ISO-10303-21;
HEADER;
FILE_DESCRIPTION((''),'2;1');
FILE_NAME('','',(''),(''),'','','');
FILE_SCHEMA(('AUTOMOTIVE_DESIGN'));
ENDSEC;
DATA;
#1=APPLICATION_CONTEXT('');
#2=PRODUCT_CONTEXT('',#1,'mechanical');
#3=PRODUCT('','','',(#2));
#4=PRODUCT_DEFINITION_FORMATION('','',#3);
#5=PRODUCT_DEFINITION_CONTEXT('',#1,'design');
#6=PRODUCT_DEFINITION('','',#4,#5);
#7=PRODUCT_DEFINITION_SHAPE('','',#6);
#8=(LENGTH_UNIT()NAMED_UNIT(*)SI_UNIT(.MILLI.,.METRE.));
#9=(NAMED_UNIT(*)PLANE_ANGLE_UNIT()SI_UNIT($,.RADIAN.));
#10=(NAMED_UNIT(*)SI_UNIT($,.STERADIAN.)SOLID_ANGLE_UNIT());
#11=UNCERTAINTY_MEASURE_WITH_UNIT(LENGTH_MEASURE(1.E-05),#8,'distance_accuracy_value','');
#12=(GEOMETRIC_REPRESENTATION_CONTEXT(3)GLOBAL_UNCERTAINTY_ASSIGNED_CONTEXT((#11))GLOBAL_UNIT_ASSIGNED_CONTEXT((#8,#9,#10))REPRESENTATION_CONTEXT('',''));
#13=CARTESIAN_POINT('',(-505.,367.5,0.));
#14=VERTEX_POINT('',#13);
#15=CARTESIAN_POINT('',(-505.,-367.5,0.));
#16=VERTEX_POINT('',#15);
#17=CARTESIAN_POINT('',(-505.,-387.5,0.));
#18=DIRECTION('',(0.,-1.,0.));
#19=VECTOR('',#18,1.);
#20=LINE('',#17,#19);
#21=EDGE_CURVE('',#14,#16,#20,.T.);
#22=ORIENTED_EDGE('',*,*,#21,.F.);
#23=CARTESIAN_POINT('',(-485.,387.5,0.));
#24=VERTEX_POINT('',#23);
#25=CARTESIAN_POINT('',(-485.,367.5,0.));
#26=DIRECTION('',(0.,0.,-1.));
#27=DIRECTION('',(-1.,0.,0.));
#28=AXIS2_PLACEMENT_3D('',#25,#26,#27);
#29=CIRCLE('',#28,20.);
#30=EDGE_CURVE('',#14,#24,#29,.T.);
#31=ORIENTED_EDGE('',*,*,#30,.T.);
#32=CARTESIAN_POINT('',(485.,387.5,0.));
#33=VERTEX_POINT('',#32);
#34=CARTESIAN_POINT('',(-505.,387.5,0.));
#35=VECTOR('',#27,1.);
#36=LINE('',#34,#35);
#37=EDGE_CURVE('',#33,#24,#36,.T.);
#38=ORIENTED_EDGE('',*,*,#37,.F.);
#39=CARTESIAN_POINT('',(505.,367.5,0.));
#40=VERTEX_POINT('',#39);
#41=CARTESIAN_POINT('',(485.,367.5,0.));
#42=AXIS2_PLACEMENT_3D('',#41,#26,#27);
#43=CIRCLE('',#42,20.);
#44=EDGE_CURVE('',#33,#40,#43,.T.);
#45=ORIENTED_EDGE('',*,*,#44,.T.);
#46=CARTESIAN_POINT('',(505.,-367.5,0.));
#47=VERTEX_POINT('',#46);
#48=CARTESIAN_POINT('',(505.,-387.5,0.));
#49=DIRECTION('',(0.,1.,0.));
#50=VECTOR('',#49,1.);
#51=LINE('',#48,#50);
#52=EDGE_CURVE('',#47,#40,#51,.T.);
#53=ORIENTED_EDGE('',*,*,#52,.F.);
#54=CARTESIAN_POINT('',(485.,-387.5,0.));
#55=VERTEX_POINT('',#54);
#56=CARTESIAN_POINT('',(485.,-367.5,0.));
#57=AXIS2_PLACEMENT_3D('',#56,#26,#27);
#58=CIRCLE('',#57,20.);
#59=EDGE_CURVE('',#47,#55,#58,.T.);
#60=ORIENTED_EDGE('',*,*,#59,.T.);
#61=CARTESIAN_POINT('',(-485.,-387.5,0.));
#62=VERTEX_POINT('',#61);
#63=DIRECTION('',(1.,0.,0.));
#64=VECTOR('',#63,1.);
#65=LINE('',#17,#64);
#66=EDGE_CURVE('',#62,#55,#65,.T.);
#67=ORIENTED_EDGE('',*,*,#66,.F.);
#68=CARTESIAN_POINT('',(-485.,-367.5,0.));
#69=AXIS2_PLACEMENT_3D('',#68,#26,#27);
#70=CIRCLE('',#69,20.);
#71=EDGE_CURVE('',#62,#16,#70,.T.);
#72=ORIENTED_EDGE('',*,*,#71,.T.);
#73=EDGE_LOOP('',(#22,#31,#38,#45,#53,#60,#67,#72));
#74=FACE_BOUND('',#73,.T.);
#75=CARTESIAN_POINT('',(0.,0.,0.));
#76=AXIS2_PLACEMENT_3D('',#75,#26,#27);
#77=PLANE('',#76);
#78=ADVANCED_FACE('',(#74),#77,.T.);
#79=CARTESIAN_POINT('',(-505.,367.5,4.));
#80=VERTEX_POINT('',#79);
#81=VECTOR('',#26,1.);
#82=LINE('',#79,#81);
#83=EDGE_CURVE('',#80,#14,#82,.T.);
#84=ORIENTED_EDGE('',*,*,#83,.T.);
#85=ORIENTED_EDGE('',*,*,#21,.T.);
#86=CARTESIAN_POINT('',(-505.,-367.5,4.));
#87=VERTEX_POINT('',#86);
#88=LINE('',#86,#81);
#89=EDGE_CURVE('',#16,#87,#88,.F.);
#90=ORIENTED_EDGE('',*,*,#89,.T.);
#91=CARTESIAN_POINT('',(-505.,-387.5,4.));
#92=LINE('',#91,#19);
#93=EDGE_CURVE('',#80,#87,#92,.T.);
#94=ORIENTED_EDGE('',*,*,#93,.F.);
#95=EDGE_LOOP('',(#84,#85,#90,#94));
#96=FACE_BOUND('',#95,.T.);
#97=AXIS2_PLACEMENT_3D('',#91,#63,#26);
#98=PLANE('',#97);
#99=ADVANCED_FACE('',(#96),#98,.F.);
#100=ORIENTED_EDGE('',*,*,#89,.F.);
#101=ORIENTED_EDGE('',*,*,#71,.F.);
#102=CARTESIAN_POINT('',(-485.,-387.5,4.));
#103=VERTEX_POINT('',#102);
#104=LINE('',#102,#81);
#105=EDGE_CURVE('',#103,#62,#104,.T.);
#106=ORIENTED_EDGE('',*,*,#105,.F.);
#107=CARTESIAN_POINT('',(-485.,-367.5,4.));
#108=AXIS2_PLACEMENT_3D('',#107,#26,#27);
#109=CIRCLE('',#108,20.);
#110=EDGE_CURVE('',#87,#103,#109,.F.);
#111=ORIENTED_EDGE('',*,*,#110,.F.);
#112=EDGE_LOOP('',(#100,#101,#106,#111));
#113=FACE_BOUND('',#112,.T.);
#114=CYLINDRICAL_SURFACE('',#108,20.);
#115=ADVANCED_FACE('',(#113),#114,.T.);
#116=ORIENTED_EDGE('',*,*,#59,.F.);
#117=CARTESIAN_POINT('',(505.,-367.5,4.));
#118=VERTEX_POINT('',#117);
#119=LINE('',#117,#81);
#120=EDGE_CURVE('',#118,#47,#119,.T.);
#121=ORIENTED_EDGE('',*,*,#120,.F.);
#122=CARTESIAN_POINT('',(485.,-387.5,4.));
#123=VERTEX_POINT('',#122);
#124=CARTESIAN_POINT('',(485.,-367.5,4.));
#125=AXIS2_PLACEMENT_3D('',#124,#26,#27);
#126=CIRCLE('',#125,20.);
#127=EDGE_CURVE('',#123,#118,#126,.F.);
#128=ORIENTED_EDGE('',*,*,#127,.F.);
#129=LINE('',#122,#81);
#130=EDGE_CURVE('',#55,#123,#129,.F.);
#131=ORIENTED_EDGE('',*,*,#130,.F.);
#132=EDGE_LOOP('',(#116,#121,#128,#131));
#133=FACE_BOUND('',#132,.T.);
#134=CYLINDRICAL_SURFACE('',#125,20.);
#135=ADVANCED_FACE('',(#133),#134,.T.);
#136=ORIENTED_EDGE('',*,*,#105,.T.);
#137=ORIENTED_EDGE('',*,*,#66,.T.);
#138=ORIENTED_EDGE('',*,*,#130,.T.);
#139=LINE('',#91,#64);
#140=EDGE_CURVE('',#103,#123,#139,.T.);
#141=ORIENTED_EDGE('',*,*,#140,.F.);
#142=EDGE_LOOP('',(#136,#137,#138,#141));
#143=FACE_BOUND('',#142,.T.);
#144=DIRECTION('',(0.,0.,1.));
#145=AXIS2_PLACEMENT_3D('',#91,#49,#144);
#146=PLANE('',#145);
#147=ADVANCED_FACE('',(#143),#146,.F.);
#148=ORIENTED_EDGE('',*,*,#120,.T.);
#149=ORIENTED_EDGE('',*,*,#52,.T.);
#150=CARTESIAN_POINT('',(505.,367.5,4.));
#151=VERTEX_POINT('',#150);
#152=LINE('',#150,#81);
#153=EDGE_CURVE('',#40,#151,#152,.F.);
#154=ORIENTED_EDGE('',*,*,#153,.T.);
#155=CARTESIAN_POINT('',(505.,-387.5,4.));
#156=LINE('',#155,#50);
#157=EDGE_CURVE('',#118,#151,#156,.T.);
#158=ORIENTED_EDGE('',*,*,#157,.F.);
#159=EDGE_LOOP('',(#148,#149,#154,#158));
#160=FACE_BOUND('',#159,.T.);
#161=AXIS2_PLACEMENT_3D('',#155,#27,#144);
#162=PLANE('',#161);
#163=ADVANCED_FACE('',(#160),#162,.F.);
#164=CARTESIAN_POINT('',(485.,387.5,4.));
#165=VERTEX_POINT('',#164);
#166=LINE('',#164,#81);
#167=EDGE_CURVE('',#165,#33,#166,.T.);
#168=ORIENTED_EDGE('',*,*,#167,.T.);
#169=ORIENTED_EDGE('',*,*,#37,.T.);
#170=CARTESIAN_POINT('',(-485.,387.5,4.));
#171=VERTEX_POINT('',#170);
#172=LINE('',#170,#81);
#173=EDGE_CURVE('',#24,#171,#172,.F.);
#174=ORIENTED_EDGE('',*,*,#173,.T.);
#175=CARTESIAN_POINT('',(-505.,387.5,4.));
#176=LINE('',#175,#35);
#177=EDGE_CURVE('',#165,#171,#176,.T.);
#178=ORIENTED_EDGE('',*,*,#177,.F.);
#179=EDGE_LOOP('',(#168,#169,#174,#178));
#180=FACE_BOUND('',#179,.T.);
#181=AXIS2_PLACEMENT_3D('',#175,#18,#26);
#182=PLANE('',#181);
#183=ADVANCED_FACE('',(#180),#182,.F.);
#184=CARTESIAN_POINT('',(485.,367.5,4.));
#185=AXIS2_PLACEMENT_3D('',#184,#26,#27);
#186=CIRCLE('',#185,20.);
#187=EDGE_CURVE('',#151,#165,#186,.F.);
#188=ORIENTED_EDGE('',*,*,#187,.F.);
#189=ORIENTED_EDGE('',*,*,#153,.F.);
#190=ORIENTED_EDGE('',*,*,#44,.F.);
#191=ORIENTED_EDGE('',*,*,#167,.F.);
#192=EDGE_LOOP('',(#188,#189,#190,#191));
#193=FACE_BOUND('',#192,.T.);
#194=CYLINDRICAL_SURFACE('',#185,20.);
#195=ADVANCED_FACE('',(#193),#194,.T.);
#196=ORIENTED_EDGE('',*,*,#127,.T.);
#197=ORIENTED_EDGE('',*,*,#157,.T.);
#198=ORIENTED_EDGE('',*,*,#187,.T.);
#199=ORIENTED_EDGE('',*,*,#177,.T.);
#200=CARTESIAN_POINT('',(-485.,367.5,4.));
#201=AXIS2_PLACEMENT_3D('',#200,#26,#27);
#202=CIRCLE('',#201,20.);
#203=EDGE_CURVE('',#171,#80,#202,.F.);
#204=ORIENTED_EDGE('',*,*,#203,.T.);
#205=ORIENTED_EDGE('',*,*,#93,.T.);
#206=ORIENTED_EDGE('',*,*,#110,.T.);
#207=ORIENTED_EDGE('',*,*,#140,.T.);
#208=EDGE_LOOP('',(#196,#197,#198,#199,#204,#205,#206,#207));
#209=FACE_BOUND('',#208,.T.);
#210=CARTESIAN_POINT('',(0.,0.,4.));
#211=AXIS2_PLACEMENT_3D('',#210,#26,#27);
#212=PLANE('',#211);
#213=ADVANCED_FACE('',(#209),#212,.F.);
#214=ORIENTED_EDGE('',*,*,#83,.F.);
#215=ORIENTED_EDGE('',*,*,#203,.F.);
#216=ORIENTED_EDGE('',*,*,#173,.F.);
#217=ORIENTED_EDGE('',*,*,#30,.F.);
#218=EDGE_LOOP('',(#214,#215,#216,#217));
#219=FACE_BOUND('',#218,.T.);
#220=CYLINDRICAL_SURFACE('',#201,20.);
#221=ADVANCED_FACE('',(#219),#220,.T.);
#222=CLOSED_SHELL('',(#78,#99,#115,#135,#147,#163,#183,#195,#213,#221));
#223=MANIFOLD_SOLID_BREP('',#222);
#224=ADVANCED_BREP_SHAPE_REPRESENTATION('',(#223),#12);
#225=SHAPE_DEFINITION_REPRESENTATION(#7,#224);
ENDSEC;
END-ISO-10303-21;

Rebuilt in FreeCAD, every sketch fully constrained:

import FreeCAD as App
import Part
import Sketcher


def edges_at(feature, points):
    """Names of the edges that pass closest to the given points."""
    edges = feature.Shape.Edges
    near = lambda p: min(range(len(edges)), key=lambda i: edges[i].distToShape(Part.Vertex(*p))[0])
    return sorted({f"Edge{near(p) + 1}" for p in points})

doc = App.newDocument("Part")
body = doc.addObject("PartDesign::Body", "Body")

# Sketch on XY plane
sketch1 = body.newObject("Sketcher::SketchObject", "Sketch")
sketch1.AttachmentSupport = (doc.getObject("XY_Plane"), [""])
sketch1.MapMode = "FlatFace"
sketch1.addGeometry([
    Part.LineSegment(App.Vector(-505, 387.5, 0), App.Vector(-505, -387.5, 0)),
    Part.LineSegment(App.Vector(-505, -387.5, 0), App.Vector(505, -387.5, 0)),
    Part.LineSegment(App.Vector(505, -387.5, 0), App.Vector(505, 387.5, 0)),
    Part.LineSegment(App.Vector(505, 387.5, 0), App.Vector(-505, 387.5, 0)),
], False)
sketch1.addConstraint([
    Sketcher.Constraint("Coincident", 0, 2, 1, 1),
    Sketcher.Constraint("Coincident", 1, 2, 2, 1),
    Sketcher.Constraint("Coincident", 2, 2, 3, 1),
    Sketcher.Constraint("Coincident", 3, 2, 0, 1),
    Sketcher.Constraint("Vertical", 0),
    Sketcher.Constraint("Horizontal", 1),
    Sketcher.Constraint("Vertical", 2),
    Sketcher.Constraint("Horizontal", 3),
    Sketcher.Constraint("Symmetric", 0, 2, 2, 2, -1, 1),
    Sketcher.Constraint("DistanceX", 1, 1, 1, 2, 1010.0),
    Sketcher.Constraint("DistanceY", 0, 2, 0, 1, 775.0),
])
pad1 = body.newObject("PartDesign::Pad", "Pad")
pad1.Profile = sketch1
pad1.Length = 4
doc.recompute()

fillet = body.newObject("PartDesign::Fillet", "Fillet")
fillet.Base = (pad1, edges_at(pad1, [
    (505, -387.5, 2),
    (-505, -387.5, 2),
    (-505, 387.5, 2),
    (505, 387.5, 2),
]))
fillet.Radius = 20

doc.recompute()
